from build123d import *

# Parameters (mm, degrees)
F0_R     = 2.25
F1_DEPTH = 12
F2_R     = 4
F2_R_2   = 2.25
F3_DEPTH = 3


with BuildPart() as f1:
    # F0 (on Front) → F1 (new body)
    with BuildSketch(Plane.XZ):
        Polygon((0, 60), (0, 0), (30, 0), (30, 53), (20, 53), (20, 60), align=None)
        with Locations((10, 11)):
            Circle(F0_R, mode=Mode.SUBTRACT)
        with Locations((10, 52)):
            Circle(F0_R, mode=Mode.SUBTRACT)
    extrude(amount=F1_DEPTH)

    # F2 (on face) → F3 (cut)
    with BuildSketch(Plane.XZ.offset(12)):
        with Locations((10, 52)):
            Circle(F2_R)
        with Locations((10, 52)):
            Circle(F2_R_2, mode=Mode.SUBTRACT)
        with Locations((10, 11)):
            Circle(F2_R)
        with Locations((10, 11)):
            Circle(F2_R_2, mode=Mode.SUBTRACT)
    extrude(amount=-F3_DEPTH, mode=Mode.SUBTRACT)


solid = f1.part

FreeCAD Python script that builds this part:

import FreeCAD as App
import Part
import Sketcher
from FreeCAD import Vector
Q = App.Units.Quantity


def add_polygon(sketch, points):
    """Adds a closed chain of lines whose ends are joined by coincident constraints."""
    first, n = sketch.GeometryCount, len(points)
    for a, b in zip(points, points[1:] + points[:1]):
        sketch.addGeometry(Part.LineSegment(App.Vector(*a, 0), App.Vector(*b, 0)), False)
    for i in range(n):
        sketch.addConstraint(Sketcher.Constraint("Coincident", first + i, 2, first + (i + 1) % n, 1))

doc = App.newDocument("Part")
body = doc.addObject("PartDesign::Body", "Body")

sketch1 = body.newObject("Sketcher::SketchObject", "Sketch")
sketch1.AttachmentSupport = (doc.getObject("XZ_Plane"), [""])
sketch1.MapMode = "FlatFace"
add_polygon(sketch1, [(0, 60), (0, 0), (30, 0), (30, 53), (20, 53), (20, 60)])
sketch1.addGeometry(Part.Circle(Vector(10, 11, 0), Vector(0, 0, 1), 2.2), False)
sketch1.addGeometry(Part.Circle(Vector(10, 52, 0), Vector(0, 0, 1), 2.2), False)
sketch1.addConstraint(Sketcher.Constraint("Vertical", 0))
sketch1.addConstraint(Sketcher.Constraint("Horizontal", 1))
sketch1.addConstraint(Sketcher.Constraint("Vertical", 2))
sketch1.addConstraint(Sketcher.Constraint("Horizontal", 3))
sketch1.addConstraint(Sketcher.Constraint("Vertical", 4))
sketch1.addConstraint(Sketcher.Constraint("Horizontal", 5))
sketch1.addConstraint(Sketcher.Constraint("Coincident", 0, 2, -1, 1))
sketch1.addConstraint(Sketcher.Constraint("Equal", 6, 7))
sketch1.addConstraint(Sketcher.Constraint("Vertical", 6, 3, 7, 3))
sketch1.addConstraint(Sketcher.Constraint("Diameter", 6, Q("4.5 mm")))
sketch1.addConstraint(Sketcher.Constraint("DistanceX", 1, 1, 1, 2, Q("30 mm")))
sketch1.addConstraint(Sketcher.Constraint("DistanceX", 3, 2, 3, 1, Q("10 mm")))
sketch1.addConstraint(Sketcher.Constraint("DistanceY", 0, 2, 0, 1, Q("60 mm")))
sketch1.addConstraint(Sketcher.Constraint("DistanceY", 2, 1, 2, 2, Q("53 mm")))
sketch1.addConstraint(Sketcher.Constraint("DistanceX", -1, 1, 6, 3, Q("10 mm")))
sketch1.addConstraint(Sketcher.Constraint("DistanceY", -1, 1, 6, 3, Q("11 mm")))
sketch1.addConstraint(Sketcher.Constraint("DistanceY", -1, 1, 7, 3, Q("52 mm")))
pad1 = body.newObject("PartDesign::Pad", "Pad")
pad1.Profile = sketch1
pad1.Length = 12

sketch2 = body.newObject("Sketcher::SketchObject", "Sketch001")
sketch2.AttachmentSupport = (doc.getObject("XZ_Plane"), [""])
sketch2.MapMode = "FlatFace"
sketch2.AttachmentOffset = App.Placement(Vector(0, 0, 12), App.Rotation())
sketch2.addGeometry(Part.Circle(Vector(10, 52, 0), Vector(0, 0, 1), 4), False)
sketch2.addGeometry(Part.Circle(Vector(10, 52, 0), Vector(0, 0, 1), 2.2), False)
sketch2.addGeometry(Part.Circle(Vector(10, 11, 0), Vector(0, 0, 1), 4), False)
sketch2.addGeometry(Part.Circle(Vector(10, 11, 0), Vector(0, 0, 1), 2.2), False)
sketch2.addConstraint(Sketcher.Constraint("Coincident", 1, 3, 0, 3))
sketch2.addConstraint(Sketcher.Constraint("Coincident", 3, 3, 2, 3))
sketch2.addConstraint(Sketcher.Constraint("Equal", 0, 2))
sketch2.addConstraint(Sketcher.Constraint("Equal", 1, 3))
sketch2.addConstraint(Sketcher.Constraint("Vertical", 1, 3, 2, 3))
sketch2.addConstraint(Sketcher.Constraint("Diameter", 0, Q("8 mm")))
sketch2.addConstraint(Sketcher.Constraint("Diameter", 1, Q("4.5 mm")))
sketch2.addConstraint(Sketcher.Constraint("DistanceX", -1, 1, 0, 3, Q("10 mm")))
sketch2.addConstraint(Sketcher.Constraint("DistanceY", -1, 1, 0, 3, Q("52 mm")))
sketch2.addConstraint(Sketcher.Constraint("DistanceY", -1, 1, 2, 3, Q("11 mm")))
pocket1 = body.newObject("PartDesign::Pocket", "Pocket")
pocket1.Profile = sketch2
pocket1.Length = 3

doc.recompute()
